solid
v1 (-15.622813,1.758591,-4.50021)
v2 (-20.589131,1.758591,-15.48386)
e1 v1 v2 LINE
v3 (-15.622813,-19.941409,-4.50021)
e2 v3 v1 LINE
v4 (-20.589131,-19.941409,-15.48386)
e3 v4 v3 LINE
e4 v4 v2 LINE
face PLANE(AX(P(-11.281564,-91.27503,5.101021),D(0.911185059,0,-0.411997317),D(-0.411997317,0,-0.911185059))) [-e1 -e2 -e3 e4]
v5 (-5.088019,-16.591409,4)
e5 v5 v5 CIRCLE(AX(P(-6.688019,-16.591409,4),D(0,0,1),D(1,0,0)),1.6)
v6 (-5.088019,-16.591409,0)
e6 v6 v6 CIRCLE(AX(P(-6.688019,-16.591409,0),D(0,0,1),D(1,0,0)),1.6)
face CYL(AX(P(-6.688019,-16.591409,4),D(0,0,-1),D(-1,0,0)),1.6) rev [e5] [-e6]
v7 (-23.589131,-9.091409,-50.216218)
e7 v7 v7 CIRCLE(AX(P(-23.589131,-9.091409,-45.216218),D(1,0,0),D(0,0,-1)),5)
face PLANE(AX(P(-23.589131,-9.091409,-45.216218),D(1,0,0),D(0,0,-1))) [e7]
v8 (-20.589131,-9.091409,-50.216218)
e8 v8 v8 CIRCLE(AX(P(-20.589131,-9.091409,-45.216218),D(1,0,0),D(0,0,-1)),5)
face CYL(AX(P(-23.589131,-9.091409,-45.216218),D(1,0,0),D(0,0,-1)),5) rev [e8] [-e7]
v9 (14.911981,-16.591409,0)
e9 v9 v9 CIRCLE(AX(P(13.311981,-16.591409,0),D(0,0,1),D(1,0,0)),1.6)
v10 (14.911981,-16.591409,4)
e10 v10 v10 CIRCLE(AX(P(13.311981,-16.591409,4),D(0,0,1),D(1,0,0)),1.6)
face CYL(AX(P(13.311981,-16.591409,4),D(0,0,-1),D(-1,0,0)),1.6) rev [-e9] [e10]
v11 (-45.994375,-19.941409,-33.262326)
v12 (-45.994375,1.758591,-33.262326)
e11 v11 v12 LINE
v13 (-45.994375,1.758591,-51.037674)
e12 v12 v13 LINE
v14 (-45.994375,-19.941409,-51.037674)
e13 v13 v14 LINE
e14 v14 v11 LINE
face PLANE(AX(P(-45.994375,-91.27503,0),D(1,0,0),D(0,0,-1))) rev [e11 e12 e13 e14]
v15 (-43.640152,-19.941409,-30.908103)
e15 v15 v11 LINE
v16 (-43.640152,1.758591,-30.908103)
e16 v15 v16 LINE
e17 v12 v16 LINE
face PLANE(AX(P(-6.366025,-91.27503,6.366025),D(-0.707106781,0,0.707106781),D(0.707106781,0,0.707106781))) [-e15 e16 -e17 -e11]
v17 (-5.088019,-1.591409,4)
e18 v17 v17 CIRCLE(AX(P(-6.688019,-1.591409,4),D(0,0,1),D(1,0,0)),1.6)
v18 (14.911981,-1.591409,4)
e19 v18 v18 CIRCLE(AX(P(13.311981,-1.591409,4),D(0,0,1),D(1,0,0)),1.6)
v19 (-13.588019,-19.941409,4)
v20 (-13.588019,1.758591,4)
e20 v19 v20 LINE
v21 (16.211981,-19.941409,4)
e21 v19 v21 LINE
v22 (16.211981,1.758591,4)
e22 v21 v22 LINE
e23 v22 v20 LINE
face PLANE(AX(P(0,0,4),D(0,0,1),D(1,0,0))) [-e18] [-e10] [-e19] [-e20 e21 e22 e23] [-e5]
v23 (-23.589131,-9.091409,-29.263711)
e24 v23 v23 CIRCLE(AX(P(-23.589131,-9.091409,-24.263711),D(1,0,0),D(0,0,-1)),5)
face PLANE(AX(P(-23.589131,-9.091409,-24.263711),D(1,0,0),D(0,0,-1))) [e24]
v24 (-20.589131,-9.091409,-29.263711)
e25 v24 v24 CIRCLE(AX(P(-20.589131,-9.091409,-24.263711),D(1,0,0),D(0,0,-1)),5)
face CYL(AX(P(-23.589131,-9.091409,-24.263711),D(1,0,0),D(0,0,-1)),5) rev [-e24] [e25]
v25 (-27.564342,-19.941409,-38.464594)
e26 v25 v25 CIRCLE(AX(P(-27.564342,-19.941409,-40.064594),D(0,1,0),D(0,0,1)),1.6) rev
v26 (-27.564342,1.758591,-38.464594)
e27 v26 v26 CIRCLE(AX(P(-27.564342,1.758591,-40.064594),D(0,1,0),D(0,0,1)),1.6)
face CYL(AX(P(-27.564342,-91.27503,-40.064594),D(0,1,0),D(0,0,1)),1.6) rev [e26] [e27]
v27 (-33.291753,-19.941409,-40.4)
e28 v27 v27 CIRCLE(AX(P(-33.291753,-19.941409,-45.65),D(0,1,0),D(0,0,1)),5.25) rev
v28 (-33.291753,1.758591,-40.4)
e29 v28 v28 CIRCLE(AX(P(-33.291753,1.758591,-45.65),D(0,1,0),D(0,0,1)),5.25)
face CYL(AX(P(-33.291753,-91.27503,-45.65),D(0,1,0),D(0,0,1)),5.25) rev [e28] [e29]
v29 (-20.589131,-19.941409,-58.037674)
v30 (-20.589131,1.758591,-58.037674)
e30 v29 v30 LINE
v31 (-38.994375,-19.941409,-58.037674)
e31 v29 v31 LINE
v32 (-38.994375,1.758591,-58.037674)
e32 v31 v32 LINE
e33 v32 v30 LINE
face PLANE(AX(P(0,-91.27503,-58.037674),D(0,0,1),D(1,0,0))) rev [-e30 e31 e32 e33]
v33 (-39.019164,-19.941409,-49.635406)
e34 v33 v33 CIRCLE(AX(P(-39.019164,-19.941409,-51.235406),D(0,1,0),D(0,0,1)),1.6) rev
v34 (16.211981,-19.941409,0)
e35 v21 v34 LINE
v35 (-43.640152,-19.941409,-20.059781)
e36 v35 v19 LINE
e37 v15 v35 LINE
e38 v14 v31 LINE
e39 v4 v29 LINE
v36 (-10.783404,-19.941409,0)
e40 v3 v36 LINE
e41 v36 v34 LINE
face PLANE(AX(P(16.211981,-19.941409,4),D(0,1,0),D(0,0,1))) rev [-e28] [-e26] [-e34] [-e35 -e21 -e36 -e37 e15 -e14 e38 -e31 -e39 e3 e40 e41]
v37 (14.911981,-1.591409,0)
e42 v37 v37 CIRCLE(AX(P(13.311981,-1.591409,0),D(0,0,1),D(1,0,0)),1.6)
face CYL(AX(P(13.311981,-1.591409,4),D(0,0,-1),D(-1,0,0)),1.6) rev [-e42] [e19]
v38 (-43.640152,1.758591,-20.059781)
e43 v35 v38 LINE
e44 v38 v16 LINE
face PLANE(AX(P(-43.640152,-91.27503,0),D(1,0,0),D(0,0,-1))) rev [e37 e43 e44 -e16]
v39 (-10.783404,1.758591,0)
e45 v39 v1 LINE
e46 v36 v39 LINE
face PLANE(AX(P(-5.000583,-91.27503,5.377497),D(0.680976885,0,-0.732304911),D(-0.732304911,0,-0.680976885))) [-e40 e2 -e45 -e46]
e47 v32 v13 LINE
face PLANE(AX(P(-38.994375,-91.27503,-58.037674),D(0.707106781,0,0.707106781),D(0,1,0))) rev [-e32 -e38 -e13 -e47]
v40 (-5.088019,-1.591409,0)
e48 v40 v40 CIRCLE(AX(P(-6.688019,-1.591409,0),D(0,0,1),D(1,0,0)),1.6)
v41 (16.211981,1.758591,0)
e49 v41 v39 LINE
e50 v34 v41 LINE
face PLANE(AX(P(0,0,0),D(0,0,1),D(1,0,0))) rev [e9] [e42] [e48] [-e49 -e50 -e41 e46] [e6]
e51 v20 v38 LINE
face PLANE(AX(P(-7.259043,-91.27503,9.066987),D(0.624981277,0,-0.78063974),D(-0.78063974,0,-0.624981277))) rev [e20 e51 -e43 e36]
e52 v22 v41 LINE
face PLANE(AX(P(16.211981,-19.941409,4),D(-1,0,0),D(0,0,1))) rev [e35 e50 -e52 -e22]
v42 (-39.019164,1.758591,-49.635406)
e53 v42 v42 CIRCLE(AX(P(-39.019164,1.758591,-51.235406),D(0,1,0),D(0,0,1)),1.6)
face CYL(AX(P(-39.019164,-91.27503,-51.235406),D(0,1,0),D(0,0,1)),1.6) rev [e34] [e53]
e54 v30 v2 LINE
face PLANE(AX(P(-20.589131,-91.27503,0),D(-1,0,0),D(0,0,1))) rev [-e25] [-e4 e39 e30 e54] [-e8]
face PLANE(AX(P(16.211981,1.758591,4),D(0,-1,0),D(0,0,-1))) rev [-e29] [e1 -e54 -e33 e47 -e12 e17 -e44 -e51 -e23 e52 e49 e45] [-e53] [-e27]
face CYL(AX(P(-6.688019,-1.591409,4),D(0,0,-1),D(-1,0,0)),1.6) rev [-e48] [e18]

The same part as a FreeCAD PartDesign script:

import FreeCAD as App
import Part
import Sketcher
from FreeCAD import Vector
Q = App.Units.Quantity


def edges_at(feature, points):
    """Names of the edges that pass closest to the given points."""
    edges = feature.Shape.Edges
    near = lambda p: min(range(len(edges)), key=lambda i: edges[i].distToShape(Part.Vertex(*p))[0])
    return sorted({f"Edge{near(p) + 1}" for p in points})

doc = App.newDocument("Part")
body = doc.addObject("PartDesign::Body", "Body")

sketch1 = body.newObject("Sketcher::SketchObject", "Sketch")
sketch1.AttachmentSupport = (doc.getObject("XY_Plane"), [""])
sketch1.MapMode = "FlatFace"
sketch1.addGeometry(Part.LineSegment(Vector(-9.6, 1.8, 0), Vector(-9.6, -19.9, 0)), False)
sketch1.addGeometry(Part.LineSegment(Vector(-9.6, -19.9, 0), Vector(16.2, -19.9, 0)), False)
sketch1.addGeometry(Part.LineSegment(Vector(16.2, -19.9, 0), Vector(16.2, 1.8, 0)), False)
sketch1.addGeometry(Part.LineSegment(Vector(16.2, 1.8, 0), Vector(-9.6, 1.8, 0)), False)
sketch1.addGeometry(Part.Circle(Vector(-6.7, -16.6, 0), Vector(0, 0, 1), 1.6), False)
sketch1.addGeometry(Part.Circle(Vector(13.3, -16.6, 0), Vector(0, 0, 1), 1.6), False)
sketch1.addGeometry(Part.Circle(Vector(-6.7, -1.6, 0), Vector(0, 0, 1), 1.6), False)
sketch1.addGeometry(Part.Circle(Vector(13.3, -1.6, 0), Vector(0, 0, 1), 1.6), False)
sketch1.addConstraint(Sketcher.Constraint("Coincident", 0, 2, 1, 1))
sketch1.addConstraint(Sketcher.Constraint("Coincident", 1, 2, 2, 1))
sketch1.addConstraint(Sketcher.Constraint("Coincident", 2, 2, 3, 1))
sketch1.addConstraint(Sketcher.Constraint("Coincident", 3, 2, 0, 1))
sketch1.addConstraint(Sketcher.Constraint("Vertical", 0))
sketch1.addConstraint(Sketcher.Constraint("Horizontal", 1))
sketch1.addConstraint(Sketcher.Constraint("Vertical", 2))
sketch1.addConstraint(Sketcher.Constraint("Horizontal", 3))
sketch1.addConstraint(Sketcher.Constraint("Equal", 4, 5))
sketch1.addConstraint(Sketcher.Constraint("Equal", 5, 6))
sketch1.addConstraint(Sketcher.Constraint("Equal", 6, 7))
sketch1.addConstraint(Sketcher.Constraint("Horizontal", 4, 3, 5, 3))
sketch1.addConstraint(Sketcher.Constraint("Horizontal", 6, 3, 7, 3))
sketch1.addConstraint(Sketcher.Constraint("Vertical", 4, 3, 6, 3))
sketch1.addConstraint(Sketcher.Constraint("Vertical", 5, 3, 7, 3))
sketch1.addConstraint(Sketcher.Constraint("Diameter", 4, Q("3.2 mm")))
sketch1.addConstraint(Sketcher.Constraint("DistanceX", 1, 1, 1, 2, Q("25.8 mm")))
sketch1.addConstraint(Sketcher.Constraint("DistanceY", 0, 2, 0, 1, Q("21.7 mm")))
sketch1.addConstraint(Sketcher.Constraint("DistanceX", 4, 3, 5, 3, Q("20 mm")))
sketch1.addConstraint(Sketcher.Constraint("DistanceY", 4, 3, 6, 3, Q("15 mm")))
sketch1.addConstraint(Sketcher.Constraint("DistanceX", 0, 2, 4, 3, Q("2.9 mm")))
sketch1.addConstraint(Sketcher.Constraint("DistanceY", 0, 2, 4, 3, Q("3.35 mm")))
sketch1.addConstraint(Sketcher.Constraint("DistanceX", 4, 3, -1, 1, Q("6.688019 mm")))
sketch1.addConstraint(Sketcher.Constraint("DistanceY", 4, 3, -1, 1, Q("16.591409 mm")))
pad1 = body.newObject("PartDesign::Pad", "Pad")
pad1.Profile = sketch1
pad1.Length = 4

sketch2 = body.newObject("Sketcher::SketchObject", "Sketch001")
sketch2.AttachmentSupport = (doc.getObject("YZ_Plane"), [""])
sketch2.MapMode = "FlatFace"
sketch2.AttachmentOffset = App.Placement(Vector(0, 0, -9.588019), App.Rotation())
sketch2.addGeometry(Part.LineSegment(Vector(1.8, 0, 0), Vector(-19.9, 0, 0)), False)
sketch2.addGeometry(Part.LineSegment(Vector(-19.9, 0, 0), Vector(-19.9, 4, 0)), False)
sketch2.addGeometry(Part.LineSegment(Vector(-19.9, 4, 0), Vector(1.8, 4, 0)), False)
sketch2.addGeometry(Part.LineSegment(Vector(1.8, 4, 0), Vector(1.8, 0, 0)), False)
sketch2.addConstraint(Sketcher.Constraint("Coincident", 0, 2, 1, 1))
sketch2.addConstraint(Sketcher.Constraint("Coincident", 1, 2, 2, 1))
sketch2.addConstraint(Sketcher.Constraint("Coincident", 2, 2, 3, 1))
sketch2.addConstraint(Sketcher.Constraint("Coincident", 3, 2, 0, 1))
sketch2.addConstraint(Sketcher.Constraint("Horizontal", 0))
sketch2.addConstraint(Sketcher.Constraint("Vertical", 1))
sketch2.addConstraint(Sketcher.Constraint("Horizontal", 2))
sketch2.addConstraint(Sketcher.Constraint("Vertical", 3))
sketch2.addConstraint(Sketcher.Constraint("PointOnObject", 0, 2, -1))
sketch2.addConstraint(Sketcher.Constraint("DistanceY", 1, 1, 1, 2, Q("4 mm")))
sketch2.addConstraint(Sketcher.Constraint("DistanceX", 0, 2, 0, 1, Q("21.7 mm")))
sketch2.addConstraint(Sketcher.Constraint("DistanceX", 0, 2, -1, 1, Q("19.941409 mm")))
pad2 = body.newObject("PartDesign::Pad", "Pad001")
pad2.Profile = sketch2
pad2.Length = 4
pad2.Reversed = True

sketch3 = body.newObject("Sketcher::SketchObject", "Sketch002")
sketch3.AttachmentSupport = (doc.getObject("XZ_Plane"), [""])
sketch3.MapMode = "FlatFace"
sketch3.AttachmentOffset = App.Placement(Vector(0, 0, -1.758591), App.Rotation())
sketch3.addGeometry(Part.LineSegment(Vector(-13.6, 4, 0), Vector(-13.6, 0, 0)), False)
sketch3.addGeometry(Part.LineSegment(Vector(-13.6, 0, 0), Vector(-10.8, 0, 0)), False)
sketch3.addGeometry(Part.LineSegment(Vector(-10.8, 0, 0), Vector(-15.6, -4.5, 0)), False)
sketch3.addGeometry(Part.LineSegment(Vector(-15.6, -4.5, 0), Vector(-20.6, -15.5, 0)), False)
sketch3.addGeometry(Part.LineSegment(Vector(-20.6, -15.5, 0), Vector(-20.6, -58, 0)), False)
sketch3.addGeometry(Part.LineSegment(Vector(-20.6, -58, 0), Vector(-46, -58, 0)), False)
sketch3.addGeometry(Part.LineSegment(Vector(-46, -58, 0), Vector(-46, -33.3, 0)), False)
sketch3.addGeometry(Part.LineSegment(Vector(-46, -33.3, 0), Vector(-43.6, -30.9, 0)), False)
sketch3.addGeometry(Part.LineSegment(Vector(-43.6, -30.9, 0), Vector(-43.6, -20.1, 0)), False)
sketch3.addGeometry(Part.LineSegment(Vector(-43.6, -20.1, 0), Vector(-13.6, 4, 0)), False)
sketch3.addGeometry(Part.Circle(Vector(-27.6, -40.1, 0), Vector(0, 0, 1), 1.6), False)
sketch3.addGeometry(Part.Circle(Vector(-39, -51.2, 0), Vector(0, 0, 1), 1.6), False)
sketch3.addGeometry(Part.Circle(Vector(-33.3, -45.6, 0), Vector(0, 0, 1), 5.2), False)
sketch3.addConstraint(Sketcher.Constraint("Coincident", 0, 2, 1, 1))
sketch3.addConstraint(Sketcher.Constraint("Coincident", 1, 2, 2, 1))
sketch3.addConstraint(Sketcher.Constraint("Coincident", 2, 2, 3, 1))
sketch3.addConstraint(Sketcher.Constraint("Coincident", 3, 2, 4, 1))
sketch3.addConstraint(Sketcher.Constraint("Coincident", 4, 2, 5, 1))
sketch3.addConstraint(Sketcher.Constraint("Coincident", 5, 2, 6, 1))
sketch3.addConstraint(Sketcher.Constraint("Coincident", 6, 2, 7, 1))
sketch3.addConstraint(Sketcher.Constraint("Coincident", 7, 2, 8, 1))
sketch3.addConstraint(Sketcher.Constraint("Coincident", 8, 2, 9, 1))
sketch3.addConstraint(Sketcher.Constraint("Coincident", 9, 2, 0, 1))
sketch3.addConstraint(Sketcher.Constraint("Vertical", 0))
sketch3.addConstraint(Sketcher.Constraint("Horizontal", 1))
sketch3.addConstraint(Sketcher.Constraint("Vertical", 4))
sketch3.addConstraint(Sketcher.Constraint("Horizontal", 5))
sketch3.addConstraint(Sketcher.Constraint("Vertical", 6))
sketch3.addConstraint(Sketcher.Constraint("Vertical", 8))
sketch3.addConstraint(Sketcher.Constraint("Equal", 10, 11))
sketch3.addConstraint(Sketcher.Constraint("PointOnObject", 0, 2, -1))
sketch3.addConstraint(Sketcher.Constraint("Diameter", 10, Q("3.2 mm")))
sketch3.addConstraint(Sketcher.Constraint("Diameter", 12, Q("10.5 mm")))
sketch3.addConstraint(Sketcher.Constraint("DistanceY", 0, 2, 0, 1, Q("4 mm")))
sketch3.addConstraint(Sketcher.Constraint("Angle", 7, Q("45 deg")))
sketch3.addConstraint(Sketcher.Constraint("DistanceY", 12, 3, -1, 1, Q("45.65 mm")))
sketch3.addConstraint(Sketcher.Constraint("DistanceY", 6, 1, 6, 2, Q("24.775348 mm")))
sketch3.addConstraint(Sketcher.Constraint("DistanceX", 7, 2, 12, 3, Q("10.348399 mm")))
sketch3.addConstraint(Sketcher.Constraint("Distance", 2, Q("6.608462 mm")))
sketch3.addConstraint(Sketcher.Constraint("Distance", 3, Q("12.054248 mm")))
sketch3.addConstraint(Sketcher.Constraint("DistanceX", 1, 1, 1, 2, Q("2.804614 mm")))
sketch3.addConstraint(Sketcher.Constraint("DistanceX", 5, 2, 5, 1, Q("25.405244 mm")))
sketch3.addConstraint(Sketcher.Constraint("DistanceY", 4, 2, 4, 1, Q("42.553814 mm")))
sketch3.addConstraint(Sketcher.Constraint("DistanceY", 8, 1, 8, 2, Q("10.848323 mm")))
sketch3.addConstraint(Sketcher.Constraint("DistanceX", 10, 3, -1, 1, Q("27.564342 mm")))
sketch3.addConstraint(Sketcher.Constraint("DistanceX", 0, 2, -1, 1, Q("13.588019 mm")))
sketch3.addConstraint(Sketcher.Constraint("DistanceY", 2, 2, -1, 1, Q("4.50021 mm")))
sketch3.addConstraint(Sketcher.Constraint("DistanceX", 3, 2, -1, 1, Q("20.589131 mm")))
sketch3.addConstraint(Sketcher.Constraint("DistanceY", 8, 2, -1, 1, Q("20.059781 mm")))
sketch3.addConstraint(Sketcher.Constraint("DistanceX", 11, 3, 12, 3, Q("5.727411 mm")))
sketch3.addConstraint(Sketcher.Constraint("DistanceY", 4, 2, 10, 3, Q("17.97308 mm")))
sketch3.addConstraint(Sketcher.Constraint("DistanceY", 11, 3, 6, 2, Q("17.97308 mm")))
pad3 = body.newObject("PartDesign::Pad", "Pad002")
pad3.Profile = sketch3
pad3.Length = 21.7
doc.recompute()

chamfer = body.newObject("PartDesign::Chamfer", "Chamfer")
chamfer.Base = (pad3, edges_at(pad3, [(-45.994, -9.091, -58.038)]))
chamfer.Size = 7

sketch4 = body.newObject("Sketcher::SketchObject", "Sketch003")
sketch4.AttachmentSupport = (doc.getObject("YZ_Plane"), [""])
sketch4.MapMode = "FlatFace"
sketch4.AttachmentOffset = App.Placement(Vector(0, 0, -20.589131), App.Rotation())
sketch4.addGeometry(Part.Circle(Vector(-9, -24, 0), Vector(0, 0, 1), 5), False)
sketch4.addGeometry(Part.Circle(Vector(-9, -45, 0), Vector(0, 0, 1), 5), False)
sketch4.addConstraint(Sketcher.Constraint("Equal", 0, 1))
sketch4.addConstraint(Sketcher.Constraint("Vertical", 0, 3, 1, 3))
sketch4.addConstraint(Sketcher.Constraint("Diameter", 0, Q("10 mm")))
sketch4.addConstraint(Sketcher.Constraint("DistanceX", 0, 3, -1, 1, Q("9.091409 mm")))
sketch4.addConstraint(Sketcher.Constraint("DistanceY", 0, 3, -1, 1, Q("24.263711 mm")))
sketch4.addConstraint(Sketcher.Constraint("DistanceY", 1, 3, -1, 1, Q("45.216218 mm")))
pocket1 = body.newObject("PartDesign::Pocket", "Pocket")
pocket1.Profile = sketch4
pocket1.Length = 3

doc.recompute()
